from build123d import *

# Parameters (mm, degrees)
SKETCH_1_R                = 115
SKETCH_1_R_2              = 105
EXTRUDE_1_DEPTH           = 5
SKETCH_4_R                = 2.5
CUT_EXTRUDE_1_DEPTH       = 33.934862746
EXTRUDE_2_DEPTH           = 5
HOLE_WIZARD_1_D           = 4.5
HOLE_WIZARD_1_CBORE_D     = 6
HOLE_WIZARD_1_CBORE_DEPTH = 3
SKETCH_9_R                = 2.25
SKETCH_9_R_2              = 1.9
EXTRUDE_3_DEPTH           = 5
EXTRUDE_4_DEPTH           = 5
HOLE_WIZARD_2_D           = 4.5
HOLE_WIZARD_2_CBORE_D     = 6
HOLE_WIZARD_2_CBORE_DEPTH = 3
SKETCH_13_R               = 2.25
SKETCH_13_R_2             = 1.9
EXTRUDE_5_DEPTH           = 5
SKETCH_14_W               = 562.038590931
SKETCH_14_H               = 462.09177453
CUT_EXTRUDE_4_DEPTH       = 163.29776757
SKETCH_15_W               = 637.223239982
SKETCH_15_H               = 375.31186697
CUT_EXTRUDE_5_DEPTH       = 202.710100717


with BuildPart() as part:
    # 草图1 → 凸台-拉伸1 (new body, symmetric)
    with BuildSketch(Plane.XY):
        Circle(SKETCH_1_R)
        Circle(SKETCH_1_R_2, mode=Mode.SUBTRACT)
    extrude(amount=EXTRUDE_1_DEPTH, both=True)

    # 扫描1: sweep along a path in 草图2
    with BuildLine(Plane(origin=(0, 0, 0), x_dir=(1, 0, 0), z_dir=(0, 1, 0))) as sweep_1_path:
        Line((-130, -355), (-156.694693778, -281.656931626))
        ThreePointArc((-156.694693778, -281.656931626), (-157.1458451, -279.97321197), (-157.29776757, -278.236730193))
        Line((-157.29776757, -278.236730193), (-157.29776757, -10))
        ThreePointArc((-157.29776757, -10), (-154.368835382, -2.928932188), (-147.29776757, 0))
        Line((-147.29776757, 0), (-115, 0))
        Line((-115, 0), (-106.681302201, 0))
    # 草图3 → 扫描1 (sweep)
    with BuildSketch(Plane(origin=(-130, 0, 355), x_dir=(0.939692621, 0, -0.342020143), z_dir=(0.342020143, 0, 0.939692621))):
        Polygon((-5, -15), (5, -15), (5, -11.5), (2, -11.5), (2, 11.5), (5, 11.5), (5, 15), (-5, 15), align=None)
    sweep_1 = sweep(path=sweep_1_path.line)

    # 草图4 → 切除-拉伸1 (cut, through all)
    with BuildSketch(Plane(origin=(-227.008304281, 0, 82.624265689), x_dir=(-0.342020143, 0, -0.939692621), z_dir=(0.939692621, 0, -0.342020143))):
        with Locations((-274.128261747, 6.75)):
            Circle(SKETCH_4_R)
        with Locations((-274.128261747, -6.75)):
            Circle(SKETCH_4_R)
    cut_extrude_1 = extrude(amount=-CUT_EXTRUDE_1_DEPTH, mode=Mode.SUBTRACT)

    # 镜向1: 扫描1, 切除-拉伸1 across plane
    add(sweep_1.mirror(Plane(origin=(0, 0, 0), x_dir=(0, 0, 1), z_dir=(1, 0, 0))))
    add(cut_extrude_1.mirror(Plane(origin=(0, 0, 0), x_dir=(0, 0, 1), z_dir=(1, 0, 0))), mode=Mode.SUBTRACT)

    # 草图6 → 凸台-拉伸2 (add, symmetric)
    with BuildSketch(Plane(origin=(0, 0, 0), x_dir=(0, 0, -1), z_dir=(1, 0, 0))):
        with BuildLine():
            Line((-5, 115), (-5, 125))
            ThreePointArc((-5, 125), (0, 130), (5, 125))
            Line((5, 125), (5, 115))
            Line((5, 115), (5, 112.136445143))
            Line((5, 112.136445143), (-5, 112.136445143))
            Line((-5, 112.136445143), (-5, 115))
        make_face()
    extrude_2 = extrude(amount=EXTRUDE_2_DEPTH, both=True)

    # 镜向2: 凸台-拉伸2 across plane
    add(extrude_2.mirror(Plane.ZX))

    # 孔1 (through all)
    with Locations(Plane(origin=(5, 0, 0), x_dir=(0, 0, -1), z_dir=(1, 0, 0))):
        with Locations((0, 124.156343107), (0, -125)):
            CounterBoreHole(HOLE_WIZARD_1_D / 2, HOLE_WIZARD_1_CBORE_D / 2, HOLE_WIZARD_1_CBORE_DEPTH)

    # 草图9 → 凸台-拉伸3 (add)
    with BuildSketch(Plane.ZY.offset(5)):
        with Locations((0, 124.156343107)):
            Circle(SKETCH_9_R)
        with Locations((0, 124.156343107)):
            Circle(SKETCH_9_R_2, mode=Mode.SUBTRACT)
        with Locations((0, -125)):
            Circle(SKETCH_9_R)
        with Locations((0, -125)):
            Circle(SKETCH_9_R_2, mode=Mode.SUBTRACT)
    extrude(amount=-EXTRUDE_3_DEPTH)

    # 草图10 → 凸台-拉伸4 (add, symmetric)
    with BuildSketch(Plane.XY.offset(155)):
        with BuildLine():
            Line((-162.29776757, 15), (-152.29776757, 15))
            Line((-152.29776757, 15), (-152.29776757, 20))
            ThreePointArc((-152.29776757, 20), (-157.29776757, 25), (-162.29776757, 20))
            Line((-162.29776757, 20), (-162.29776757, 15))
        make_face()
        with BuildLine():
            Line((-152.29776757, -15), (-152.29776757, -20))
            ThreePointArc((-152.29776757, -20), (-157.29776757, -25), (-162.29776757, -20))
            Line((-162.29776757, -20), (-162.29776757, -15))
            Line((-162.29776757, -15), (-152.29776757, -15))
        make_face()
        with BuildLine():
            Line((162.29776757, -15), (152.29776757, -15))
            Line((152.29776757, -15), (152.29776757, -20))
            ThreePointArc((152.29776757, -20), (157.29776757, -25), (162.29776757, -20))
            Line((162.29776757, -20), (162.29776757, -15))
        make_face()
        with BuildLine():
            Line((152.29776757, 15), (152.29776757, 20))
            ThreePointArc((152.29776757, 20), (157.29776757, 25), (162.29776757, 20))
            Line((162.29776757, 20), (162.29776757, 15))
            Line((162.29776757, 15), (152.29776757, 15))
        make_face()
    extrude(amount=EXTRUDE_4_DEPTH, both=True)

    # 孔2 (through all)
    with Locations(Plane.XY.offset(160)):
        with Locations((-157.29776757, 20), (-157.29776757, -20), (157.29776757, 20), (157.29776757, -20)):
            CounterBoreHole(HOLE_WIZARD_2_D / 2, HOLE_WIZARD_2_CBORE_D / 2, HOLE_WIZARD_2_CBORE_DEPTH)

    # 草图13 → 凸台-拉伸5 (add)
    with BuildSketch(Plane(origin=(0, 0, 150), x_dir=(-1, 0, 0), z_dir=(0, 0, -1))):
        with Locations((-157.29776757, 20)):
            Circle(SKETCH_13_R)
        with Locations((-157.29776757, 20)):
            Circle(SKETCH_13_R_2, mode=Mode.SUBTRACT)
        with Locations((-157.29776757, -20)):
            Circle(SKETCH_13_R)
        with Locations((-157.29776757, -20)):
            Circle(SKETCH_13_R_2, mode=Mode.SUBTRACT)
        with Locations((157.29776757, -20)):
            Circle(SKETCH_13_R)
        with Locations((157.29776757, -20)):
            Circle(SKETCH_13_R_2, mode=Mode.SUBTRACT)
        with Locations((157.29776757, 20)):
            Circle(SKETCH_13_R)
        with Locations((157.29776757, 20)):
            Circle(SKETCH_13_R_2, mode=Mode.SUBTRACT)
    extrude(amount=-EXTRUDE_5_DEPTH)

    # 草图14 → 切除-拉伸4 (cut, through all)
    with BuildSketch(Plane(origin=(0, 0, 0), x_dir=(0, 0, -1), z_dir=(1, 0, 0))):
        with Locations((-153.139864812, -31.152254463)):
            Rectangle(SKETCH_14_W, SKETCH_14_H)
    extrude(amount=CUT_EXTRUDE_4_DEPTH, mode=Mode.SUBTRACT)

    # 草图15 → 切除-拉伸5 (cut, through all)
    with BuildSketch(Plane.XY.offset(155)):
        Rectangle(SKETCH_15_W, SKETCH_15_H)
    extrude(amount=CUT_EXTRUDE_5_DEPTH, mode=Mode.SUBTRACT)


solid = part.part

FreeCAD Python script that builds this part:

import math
import FreeCAD as App
import Part
import Sketcher
Q = App.Units.Quantity


def add_polygon(sketch, points):
    """Adds a closed chain of lines whose ends are joined by coincident constraints."""
    first, n = sketch.GeometryCount, len(points)
    for a, b in zip(points, points[1:] + points[:1]):
        sketch.addGeometry(Part.LineSegment(App.Vector(*a, 0), App.Vector(*b, 0)), False)
    for i in range(n):
        sketch.addConstraint(Sketcher.Constraint("Coincident", first + i, 2, first + (i + 1) % n, 1))

doc = App.newDocument("Part")
params = doc.addObject("Spreadsheet::Sheet", "Params")
for row, (alias, value) in enumerate([
    ("sketch1_diameter", "230 mm"),
    ("sketch1_diameter2", "210 mm"),
    ("pad1_length", "10 mm"),
    ("sketch2_width", "10 mm"),
    ("sketch2_width2", "3 mm"),
    ("sketch2_height", "23 mm"),
    ("sketch2_height2", "30 mm"),
    ("sketch3_radius", "10 mm"),
    ("sketch4_diameter", "5 mm"),
    ("sketch5_radius", "5 mm"),
    ("pad2_length", "10 mm"),
    ("sketch6_diameter", "4.5 mm"),
    ("hole_diameter", "4.5 mm"),
    ("hole_cbore_diameter", "6 mm"),
    ("hole_cbore_depth", "3 mm"),
    ("sketch7_diameter", "4.5 mm"),
    ("sketch7_diameter2", "3.8 mm"),
    ("pad3_length", "5 mm"),
    ("sketch8_radius", "5 mm"),
    ("sketch8_height", "5 mm"),
    ("pad4_length", "10 mm"),
    ("sketch9_diameter", "4.5 mm"),
    ("hole2_diameter", "4.5 mm"),
    ("hole2_cbore_diameter", "6 mm"),
    ("hole2_cbore_depth", "3 mm"),
    ("sketch10_diameter", "4.5 mm"),
    ("sketch10_diameter2", "3.8 mm"),
    ("pad5_length", "5 mm"),
], start=1):
    params.set(f"A{row}", alias)
    params.set(f"B{row}", "=" + value)
    params.setAlias(f"B{row}", alias)

body = doc.addObject("PartDesign::Body", "Body")

# Sketch on XY plane
sketch1 = doc.addObject("Sketcher::SketchObject", "Sketch")
body.addObject(sketch1)
sketch1.AttachmentSupport = (doc.XY_Plane, [""])
sketch1.MapMode = "FlatFace"
sketch1.addGeometry(Part.Circle(App.Vector(0, 0, 0), App.Vector(0, 0, 1), 115), False)
sketch1.addGeometry(Part.Circle(App.Vector(0, 0, 0), App.Vector(0, 0, 1), 105), False)
sketch1.addConstraint(Sketcher.Constraint("Coincident", 0, 3, -1, 1))
sketch1.addConstraint(Sketcher.Constraint("Coincident", 1, 3, -1, 1))
sketch1.addConstraint(Sketcher.Constraint("Diameter", 0, Q("230 mm")))
sketch1.addConstraint(Sketcher.Constraint("Diameter", 1, Q("210 mm")))
sketch1.setExpression("Constraints[2]", "Params.sketch1_diameter")
sketch1.setExpression("Constraints[3]", "Params.sketch1_diameter2")
pad1 = doc.addObject("PartDesign::Pad", "Pad")
body.addObject(pad1)
pad1.Profile = sketch1
pad1.setExpression("Length", "Params.pad1_length")
pad1.Midplane = True

# Sketch on an angled plane
sketch2 = doc.addObject("Sketcher::SketchObject", "Sketch001")
body.addObject(sketch2)
sketch2.Placement = App.Placement(App.Vector(-130, 0, 355), App.Rotation(App.Vector(0.939692621, 0, -0.342020143), App.Vector(0, 1, 0), App.Vector(0.342020143, 0, 0.939692621), "ZXY"))
add_polygon(sketch2, [(-5, -15), (5, -15), (5, -11.5), (2, -11.5), (2, 11.5), (5, 11.5), (5, 15), (-5, 15)])  # lines 0-7
sketch2.addConstraint(Sketcher.Constraint("Horizontal", 0))
sketch2.addConstraint(Sketcher.Constraint("Vertical", 1))
sketch2.addConstraint(Sketcher.Constraint("Horizontal", 2))
sketch2.addConstraint(Sketcher.Constraint("Vertical", 3))
sketch2.addConstraint(Sketcher.Constraint("Horizontal", 4))
sketch2.addConstraint(Sketcher.Constraint("Vertical", 5))
sketch2.addConstraint(Sketcher.Constraint("Horizontal", 6))
sketch2.addConstraint(Sketcher.Constraint("Vertical", 7))
sketch2.addConstraint(Sketcher.Constraint("Symmetric", 0, 2, 6, 2, -1, 1))
sketch2.addConstraint(Sketcher.Constraint("Symmetric", 1, 2, 4, 2, -1))
sketch2.addConstraint(Sketcher.Constraint("DistanceX", 0, 1, 0, 2, Q("10 mm")))
sketch2.addConstraint(Sketcher.Constraint("DistanceX", 2, 2, 2, 1, Q("3 mm")))
sketch2.addConstraint(Sketcher.Constraint("DistanceY", 3, 1, 3, 2, Q("23 mm")))
sketch2.addConstraint(Sketcher.Constraint("DistanceY", 7, 2, 7, 1, Q("30 mm")))
sketch2.setExpression("Constraints[18]", "Params.sketch2_width")
sketch2.setExpression("Constraints[19]", "Params.sketch2_width2")
sketch2.setExpression("Constraints[20]", "Params.sketch2_height")
sketch2.setExpression("Constraints[21]", "Params.sketch2_height2")

# Sketch on XZ plane
sketch3 = doc.addObject("Sketcher::SketchObject", "Sketch002")
body.addObject(sketch3)
sketch3.AttachmentSupport = (doc.XZ_Plane, [""])
sketch3.MapMode = "FlatFace"
sketch3.addGeometry(Part.LineSegment(App.Vector(-130, 355, 0), App.Vector(-156.7, 281.7, 0)), False)
sketch3.addGeometry(Part.ArcOfCircle(Part.Circle(App.Vector(-147.3, 278.2, 0), App.Vector(0, 0, 1), 10), math.radians(160), math.radians(180)), False)
sketch3.addGeometry(Part.LineSegment(App.Vector(-157.3, 278.2, 0), App.Vector(-157.3, 10, 0)), False)
sketch3.addGeometry(Part.ArcOfCircle(Part.Circle(App.Vector(-147.3, 10, 0), App.Vector(0, 0, 1), 10), math.radians(180), math.radians(270)), False)
sketch3.addGeometry(Part.LineSegment(App.Vector(-147.3, 0, 0), App.Vector(-106.7, 0, 0)), False)
sketch3.addConstraint(Sketcher.Constraint("Tangent", 0, 2, 1, 1))
sketch3.addConstraint(Sketcher.Constraint("Tangent", 1, 2, 2, 1))
sketch3.addConstraint(Sketcher.Constraint("Tangent", 2, 2, 3, 1))
sketch3.addConstraint(Sketcher.Constraint("Tangent", 3, 2, 4, 1))
sketch3.addConstraint(Sketcher.Constraint("Vertical", 2))
sketch3.addConstraint(Sketcher.Constraint("Horizontal", 4))
sketch3.addConstraint(Sketcher.Constraint("Equal", 1, 3))
sketch3.addConstraint(Sketcher.Constraint("PointOnObject", 3, 2, -1))
sketch3.addConstraint(Sketcher.Constraint("Radius", 1, Q("10 mm")))
sketch3.addConstraint(Sketcher.Constraint("Angle", 0, Q("-110 deg")))
sketch3.addConstraint(Sketcher.Constraint("DistanceX", 0, 1, -1, 1, Q("130 mm")))
sketch3.addConstraint(Sketcher.Constraint("DistanceY", -1, 1, 0, 1, Q("355 mm")))
sketch3.addConstraint(Sketcher.Constraint("DistanceY", 2, 2, 2, 1, Q("268.23673 mm")))
sketch3.addConstraint(Sketcher.Constraint("DistanceX", 4, 1, 4, 2, Q("40.616465 mm")))
sketch3.setExpression("Constraints[8]", "Params.sketch3_radius")
doc.recompute()

additivepipe = doc.addObject("PartDesign::AdditivePipe", "AdditivePipe")
body.addObject(additivepipe)
additivepipe.Profile = sketch2
additivepipe.Spine = (sketch3, ["Edge1", "Edge2", "Edge3", "Edge4", "Edge5"])

# Sketch on an angled plane
sketch4 = doc.addObject("Sketcher::SketchObject", "Sketch003")
body.addObject(sketch4)
sketch4.Placement = App.Placement(App.Vector(-227.008304, 0, 82.624266), App.Rotation(App.Vector(-0.342020143, 0, -0.939692621), App.Vector(0, 1, 0), App.Vector(0.939692621, 0, -0.342020143), "ZXY"))
sketch4.addGeometry(Part.Circle(App.Vector(-274.1, 6.8, 0), App.Vector(0, 0, 1), 2.5), False)
sketch4.addGeometry(Part.Circle(App.Vector(-274.1, -6.8, 0), App.Vector(0, 0, 1), 2.5), False)
sketch4.addConstraint(Sketcher.Constraint("Equal", 0, 1))
sketch4.addConstraint(Sketcher.Constraint("Symmetric", 0, 3, 1, 3, -1))
sketch4.addConstraint(Sketcher.Constraint("Diameter", 0, Q("5 mm")))
sketch4.addConstraint(Sketcher.Constraint("DistanceY", 1, 3, 0, 3, Q("13.5 mm")))
sketch4.addConstraint(Sketcher.Constraint("DistanceX", 0, 3, -1, 1, Q("274.128262 mm")))
sketch4.setExpression("Constraints[2]", "Params.sketch4_diameter")
pocket1 = doc.addObject("PartDesign::Pocket", "Pocket")
body.addObject(pocket1)
pocket1.Profile = sketch4
pocket1.Type = "ThroughAll"
doc.recompute()

mirrored = doc.addObject("PartDesign::Mirrored", "Mirrored")
body.addObject(mirrored)
mirrored.Originals = [additivepipe, pocket1]
mirrored.MirrorPlane = (doc.YZ_Plane, [""])
body.Tip = mirrored

# Sketch on YZ plane
sketch5 = doc.addObject("Sketcher::SketchObject", "Sketch004")
body.addObject(sketch5)
sketch5.AttachmentSupport = (doc.YZ_Plane, [""])
sketch5.MapMode = "FlatFace"
sketch5.addGeometry(Part.ArcOfCircle(Part.Circle(App.Vector(125, 0, 0), App.Vector(0, 0, 1), 5), math.radians(-90), math.radians(90)), False)
sketch5.addGeometry(Part.LineSegment(App.Vector(125, 5, 0), App.Vector(112, 5, 0)), False)
sketch5.addGeometry(Part.LineSegment(App.Vector(112, 5, 0), App.Vector(112, -5, 0)), False)
sketch5.addGeometry(Part.LineSegment(App.Vector(112, -5, 0), App.Vector(125, -5, 0)), False)
sketch5.addConstraint(Sketcher.Constraint("Tangent", 0, 2, 1, 1))
sketch5.addConstraint(Sketcher.Constraint("Coincident", 1, 2, 2, 1))
sketch5.addConstraint(Sketcher.Constraint("Coincident", 2, 2, 3, 1))
sketch5.addConstraint(Sketcher.Constraint("Tangent", 3, 2, 0, 1))
sketch5.addConstraint(Sketcher.Constraint("Horizontal", 1))
sketch5.addConstraint(Sketcher.Constraint("Vertical", 2))
sketch5.addConstraint(Sketcher.Constraint("Horizontal", 3))
sketch5.addConstraint(Sketcher.Constraint("PointOnObject", 0, 3, -1))
sketch5.addConstraint(Sketcher.Constraint("Radius", 0, Q("5 mm")))
sketch5.addConstraint(Sketcher.Constraint("DistanceX", -1, 1, 0, 3, Q("125 mm")))
sketch5.addConstraint(Sketcher.Constraint("DistanceX", 1, 2, 1, 1, Q("12.863555 mm")))
sketch5.setExpression("Constraints[8]", "Params.sketch5_radius")
pad2 = doc.addObject("PartDesign::Pad", "Pad001")
body.addObject(pad2)
pad2.Profile = sketch5
pad2.setExpression("Length", "Params.pad2_length")
pad2.Midplane = True
doc.recompute()

mirrored2 = doc.addObject("PartDesign::Mirrored", "Mirrored001")
body.addObject(mirrored2)
mirrored2.Originals = [pad2]
mirrored2.MirrorPlane = (doc.XZ_Plane, [""])
body.Tip = mirrored2

# Sketch on YZ plane
sketch6 = doc.addObject("Sketcher::SketchObject", "Sketch005")
body.addObject(sketch6)
sketch6.AttachmentSupport = (doc.YZ_Plane, [""])
sketch6.MapMode = "FlatFace"
sketch6.AttachmentOffset = App.Placement(App.Vector(0, 0, 5), App.Rotation())
sketch6.addGeometry(Part.Circle(App.Vector(124.2, 0, 0), App.Vector(0, 0, 1), 2.2), False)
sketch6.addGeometry(Part.Circle(App.Vector(-125, 0, 0), App.Vector(0, 0, 1), 2.2), False)
sketch6.addConstraint(Sketcher.Constraint("Equal", 0, 1))
sketch6.addConstraint(Sketcher.Constraint("PointOnObject", 0, 3, -1))
sketch6.addConstraint(Sketcher.Constraint("PointOnObject", 1, 3, -1))
sketch6.addConstraint(Sketcher.Constraint("Diameter", 0, Q("4.5 mm")))
sketch6.addConstraint(Sketcher.Constraint("DistanceX", 1, 3, -1, 1, Q("125 mm")))
sketch6.addConstraint(Sketcher.Constraint("DistanceX", -1, 1, 0, 3, Q("124.156343 mm")))
sketch6.setExpression("Constraints[3]", "Params.sketch6_diameter")
doc.recompute()
hole = doc.addObject("PartDesign::Hole", "Hole")
body.addObject(hole)
hole.Profile = sketch6
hole.ThreadType = "None"
hole.setExpression("Diameter", "Params.hole_diameter")
hole.DepthType = "ThroughAll"
hole.HoleCutType = "Counterbore"
hole.setExpression("HoleCutDiameter", "Params.hole_cbore_diameter")
hole.setExpression("HoleCutDepth", "Params.hole_cbore_depth")

# Sketch on YZ plane
sketch7 = doc.addObject("Sketcher::SketchObject", "Sketch006")
body.addObject(sketch7)
sketch7.AttachmentSupport = (doc.YZ_Plane, [""])
sketch7.MapMode = "FlatFace"
sketch7.AttachmentOffset = App.Placement(App.Vector(0, 0, -5), App.Rotation())
sketch7.addGeometry(Part.Circle(App.Vector(124.2, 0, 0), App.Vector(0, 0, 1), 2.2), False)
sketch7.addGeometry(Part.Circle(App.Vector(124.2, 0, 0), App.Vector(0, 0, 1), 1.9), False)
sketch7.addGeometry(Part.Circle(App.Vector(-125, 0, 0), App.Vector(0, 0, 1), 2.2), False)
sketch7.addGeometry(Part.Circle(App.Vector(-125, 0, 0), App.Vector(0, 0, 1), 1.9), False)
sketch7.addConstraint(Sketcher.Constraint("Coincident", 1, 3, 0, 3))
sketch7.addConstraint(Sketcher.Constraint("Coincident", 3, 3, 2, 3))
sketch7.addConstraint(Sketcher.Constraint("Equal", 0, 2))
sketch7.addConstraint(Sketcher.Constraint("Equal", 1, 3))
sketch7.addConstraint(Sketcher.Constraint("PointOnObject", 0, 3, -1))
sketch7.addConstraint(Sketcher.Constraint("PointOnObject", 2, 3, -1))
sketch7.addConstraint(Sketcher.Constraint("Diameter", 0, Q("4.5 mm")))
sketch7.addConstraint(Sketcher.Constraint("Diameter", 1, Q("3.8 mm")))
sketch7.addConstraint(Sketcher.Constraint("DistanceX", 2, 3, -1, 1, Q("125 mm")))
sketch7.addConstraint(Sketcher.Constraint("DistanceX", -1, 1, 0, 3, Q("124.156343 mm")))
sketch7.setExpression("Constraints[6]", "Params.sketch7_diameter")
sketch7.setExpression("Constraints[7]", "Params.sketch7_diameter2")
pad3 = doc.addObject("PartDesign::Pad", "Pad002")
body.addObject(pad3)
pad3.Profile = sketch7
pad3.setExpression("Length", "Params.pad3_length")

# Sketch on XY plane
sketch8 = doc.addObject("Sketcher::SketchObject", "Sketch007")
body.addObject(sketch8)
sketch8.AttachmentSupport = (doc.XY_Plane, [""])
sketch8.MapMode = "FlatFace"
sketch8.AttachmentOffset = App.Placement(App.Vector(0, 0, 155), App.Rotation())
sketch8.addGeometry(Part.LineSegment(App.Vector(-162, 15, 0), App.Vector(-152, 15, 0)), False)
sketch8.addGeometry(Part.LineSegment(App.Vector(-152, 15, 0), App.Vector(-152, 20, 0)), False)
sketch8.addGeometry(Part.ArcOfCircle(Part.Circle(App.Vector(-157, 20, 0), App.Vector(0, 0, 1), 5), math.radians(0), math.radians(180)), False)
sketch8.addGeometry(Part.LineSegment(App.Vector(-162, 20, 0), App.Vector(-162, 15, 0)), False)
sketch8.addGeometry(Part.LineSegment(App.Vector(-152, -20, 0), App.Vector(-152, -15, 0)), False)
sketch8.addGeometry(Part.LineSegment(App.Vector(-152, -15, 0), App.Vector(-162, -15, 0)), False)
sketch8.addGeometry(Part.LineSegment(App.Vector(-162, -15, 0), App.Vector(-162, -20, 0)), False)
sketch8.addGeometry(Part.ArcOfCircle(Part.Circle(App.Vector(-157, -20, 0), App.Vector(0, 0, 1), 5), math.radians(180), math.radians(360)), False)
sketch8.addGeometry(Part.LineSegment(App.Vector(162, -15, 0), App.Vector(152, -15, 0)), False)
sketch8.addGeometry(Part.LineSegment(App.Vector(152, -15, 0), App.Vector(152, -20, 0)), False)
sketch8.addGeometry(Part.ArcOfCircle(Part.Circle(App.Vector(157, -20, 0), App.Vector(0, 0, 1), 5), math.radians(180), math.radians(360)), False)
sketch8.addGeometry(Part.LineSegment(App.Vector(162, -20, 0), App.Vector(162, -15, 0)), False)
sketch8.addGeometry(Part.LineSegment(App.Vector(152, 20, 0), App.Vector(152, 15, 0)), False)
sketch8.addGeometry(Part.LineSegment(App.Vector(152, 15, 0), App.Vector(162, 15, 0)), False)
sketch8.addGeometry(Part.LineSegment(App.Vector(162, 15, 0), App.Vector(162, 20, 0)), False)
sketch8.addGeometry(Part.ArcOfCircle(Part.Circle(App.Vector(157, 20, 0), App.Vector(0, 0, 1), 5), math.radians(0), math.radians(180)), False)
sketch8.addConstraint(Sketcher.Constraint("Coincident", 0, 2, 1, 1))
sketch8.addConstraint(Sketcher.Constraint("Tangent", 1, 2, 2, 1))
sketch8.addConstraint(Sketcher.Constraint("Tangent", 2, 2, 3, 1))
sketch8.addConstraint(Sketcher.Constraint("Coincident", 3, 2, 0, 1))
sketch8.addConstraint(Sketcher.Constraint("Coincident", 4, 2, 5, 1))
sketch8.addConstraint(Sketcher.Constraint("Coincident", 5, 2, 6, 1))
sketch8.addConstraint(Sketcher.Constraint("Tangent", 6, 2, 7, 1))
sketch8.addConstraint(Sketcher.Constraint("Tangent", 7, 2, 4, 1))
sketch8.addConstraint(Sketcher.Constraint("Coincident", 8, 2, 9, 1))
sketch8.addConstraint(Sketcher.Constraint("Tangent", 9, 2, 10, 1))
sketch8.addConstraint(Sketcher.Constraint("Tangent", 10, 2, 11, 1))
sketch8.addConstraint(Sketcher.Constraint("Coincident", 11, 2, 8, 1))
sketch8.addConstraint(Sketcher.Constraint("Coincident", 12, 2, 13, 1))
sketch8.addConstraint(Sketcher.Constraint("Coincident", 13, 2, 14, 1))
sketch8.addConstraint(Sketcher.Constraint("Tangent", 14, 2, 15, 1))
sketch8.addConstraint(Sketcher.Constraint("Tangent", 15, 2, 12, 1))
sketch8.addConstraint(Sketcher.Constraint("Horizontal", 0))
sketch8.addConstraint(Sketcher.Constraint("Vertical", 1))
sketch8.addConstraint(Sketcher.Constraint("Vertical", 3))
sketch8.addConstraint(Sketcher.Constraint("Vertical", 4))
sketch8.addConstraint(Sketcher.Constraint("Horizontal", 5))
sketch8.addConstraint(Sketcher.Constraint("Vertical", 6))
sketch8.addConstraint(Sketcher.Constraint("Horizontal", 8))
sketch8.addConstraint(Sketcher.Constraint("Vertical", 9))
sketch8.addConstraint(Sketcher.Constraint("Vertical", 11))
sketch8.addConstraint(Sketcher.Constraint("Vertical", 12))
sketch8.addConstraint(Sketcher.Constraint("Horizontal", 13))
sketch8.addConstraint(Sketcher.Constraint("Vertical", 14))
sketch8.addConstraint(Sketcher.Constraint("Equal", 2, 7))
sketch8.addConstraint(Sketcher.Constraint("Equal", 7, 10))
sketch8.addConstraint(Sketcher.Constraint("Equal", 10, 15))
sketch8.addConstraint(Sketcher.Constraint("Symmetric", 2, 3, 10, 3, -1, 1))
sketch8.addConstraint(Sketcher.Constraint("Symmetric", 7, 3, 15, 3, -1, 1))
sketch8.addConstraint(Sketcher.Constraint("Symmetric", 7, 3, 10, 3, -2))
sketch8.addConstraint(Sketcher.Constraint("Horizontal", 5, 2, 8, 2))
sketch8.addConstraint(Sketcher.Constraint("Horizontal", 3, 2, 12, 2))
sketch8.addConstraint(Sketcher.Constraint("Equal", 3, 4))
sketch8.addConstraint(Sketcher.Constraint("Radius", 2, Q("5 mm")))
sketch8.addConstraint(Sketcher.Constraint("DistanceY", 1, 1, 1, 2, Q("5 mm")))
sketch8.addConstraint(Sketcher.Constraint("DistanceY", -1, 1, 2, 3, Q("20 mm")))
sketch8.addConstraint(Sketcher.Constraint("DistanceX", 2, 3, -1, 1, Q("157.297768 mm")))
sketch8.setExpression("Constraints[37]", "Params.sketch8_radius")
sketch8.setExpression("Constraints[38]", "Params.sketch8_height")
pad4 = doc.addObject("PartDesign::Pad", "Pad003")
body.addObject(pad4)
pad4.Profile = sketch8
pad4.setExpression("Length", "Params.pad4_length")
pad4.Midplane = True

# Sketch on XY plane
sketch9 = doc.addObject("Sketcher::SketchObject", "Sketch008")
body.addObject(sketch9)
sketch9.AttachmentSupport = (doc.XY_Plane, [""])
sketch9.MapMode = "FlatFace"
sketch9.AttachmentOffset = App.Placement(App.Vector(0, 0, 160), App.Rotation())
sketch9.addGeometry(Part.Circle(App.Vector(-157.3, 20, 0), App.Vector(0, 0, 1), 2.2), False)
sketch9.addGeometry(Part.Circle(App.Vector(-157.3, -20, 0), App.Vector(0, 0, 1), 2.2), False)
sketch9.addGeometry(Part.Circle(App.Vector(157.3, 20, 0), App.Vector(0, 0, 1), 2.2), False)
sketch9.addGeometry(Part.Circle(App.Vector(157.3, -20, 0), App.Vector(0, 0, 1), 2.2), False)
sketch9.addConstraint(Sketcher.Constraint("Equal", 0, 1))
sketch9.addConstraint(Sketcher.Constraint("Equal", 1, 2))
sketch9.addConstraint(Sketcher.Constraint("Equal", 2, 3))
sketch9.addConstraint(Sketcher.Constraint("Symmetric", 1, 3, 2, 3, -1, 1))
sketch9.addConstraint(Sketcher.Constraint("Symmetric", 0, 3, 3, 3, -1, 1))
sketch9.addConstraint(Sketcher.Constraint("Symmetric", 0, 3, 2, 3, -2))
sketch9.addConstraint(Sketcher.Constraint("Diameter", 0, Q("4.5 mm")))
sketch9.addConstraint(Sketcher.Constraint("DistanceY", -1, 1, 0, 3, Q("20 mm")))
sketch9.addConstraint(Sketcher.Constraint("DistanceX", 0, 3, -1, 1, Q("157.297768 mm")))
sketch9.setExpression("Constraints[6]", "Params.sketch9_diameter")
doc.recompute()
hole2 = doc.addObject("PartDesign::Hole", "Hole001")
body.addObject(hole2)
hole2.Profile = sketch9
hole2.ThreadType = "None"
hole2.setExpression("Diameter", "Params.hole2_diameter")
hole2.DepthType = "ThroughAll"
hole2.HoleCutType = "Counterbore"
hole2.setExpression("HoleCutDiameter", "Params.hole2_cbore_diameter")
hole2.setExpression("HoleCutDepth", "Params.hole2_cbore_depth")

# Sketch on XY plane
sketch10 = doc.addObject("Sketcher::SketchObject", "Sketch009")
body.addObject(sketch10)
sketch10.AttachmentSupport = (doc.XY_Plane, [""])
sketch10.MapMode = "FlatFace"
sketch10.AttachmentOffset = App.Placement(App.Vector(0, 0, 150), App.Rotation())
sketch10.addGeometry(Part.Circle(App.Vector(157.3, 20, 0), App.Vector(0, 0, 1), 2.2), False)
sketch10.addGeometry(Part.Circle(App.Vector(157.3, 20, 0), App.Vector(0, 0, 1), 1.9), False)
sketch10.addGeometry(Part.Circle(App.Vector(157.3, -20, 0), App.Vector(0, 0, 1), 2.2), False)
sketch10.addGeometry(Part.Circle(App.Vector(157.3, -20, 0), App.Vector(0, 0, 1), 1.9), False)
sketch10.addGeometry(Part.Circle(App.Vector(-157.3, -20, 0), App.Vector(0, 0, 1), 2.2), False)
sketch10.addGeometry(Part.Circle(App.Vector(-157.3, -20, 0), App.Vector(0, 0, 1), 1.9), False)
sketch10.addGeometry(Part.Circle(App.Vector(-157.3, 20, 0), App.Vector(0, 0, 1), 2.2), False)
sketch10.addGeometry(Part.Circle(App.Vector(-157.3, 20, 0), App.Vector(0, 0, 1), 1.9), False)
sketch10.addConstraint(Sketcher.Constraint("Coincident", 1, 3, 0, 3))
sketch10.addConstraint(Sketcher.Constraint("Coincident", 3, 3, 2, 3))
sketch10.addConstraint(Sketcher.Constraint("Coincident", 5, 3, 4, 3))
sketch10.addConstraint(Sketcher.Constraint("Coincident", 7, 3, 6, 3))
sketch10.addConstraint(Sketcher.Constraint("Equal", 0, 2))
sketch10.addConstraint(Sketcher.Constraint("Equal", 1, 3))
sketch10.addConstraint(Sketcher.Constraint("Equal", 2, 4))
sketch10.addConstraint(Sketcher.Constraint("Equal", 3, 5))
sketch10.addConstraint(Sketcher.Constraint("Equal", 4, 6))
sketch10.addConstraint(Sketcher.Constraint("Equal", 5, 7))
sketch10.addConstraint(Sketcher.Constraint("Symmetric", 0, 3, 4, 3, -1, 1))
sketch10.addConstraint(Sketcher.Constraint("Symmetric", 2, 3, 6, 3, -1, 1))
sketch10.addConstraint(Sketcher.Constraint("Symmetric", 2, 3, 4, 3, -2))
sketch10.addConstraint(Sketcher.Constraint("Diameter", 0, Q("4.5 mm")))
sketch10.addConstraint(Sketcher.Constraint("Diameter", 1, Q("3.8 mm")))
sketch10.addConstraint(Sketcher.Constraint("DistanceY", -1, 1, 0, 3, Q("20 mm")))
sketch10.addConstraint(Sketcher.Constraint("DistanceX", -1, 1, 0, 3, Q("157.297768 mm")))
sketch10.setExpression("Constraints[13]", "Params.sketch10_diameter")
sketch10.setExpression("Constraints[14]", "Params.sketch10_diameter2")
pad5 = doc.addObject("PartDesign::Pad", "Pad004")
body.addObject(pad5)
pad5.Profile = sketch10
pad5.setExpression("Length", "Params.pad5_length")

# Sketch on YZ plane
sketch11 = doc.addObject("Sketcher::SketchObject", "Sketch010")
body.addObject(sketch11)
sketch11.AttachmentSupport = (doc.YZ_Plane, [""])
sketch11.MapMode = "FlatFace"
add_polygon(sketch11, [(200, 434), (-262, 434), (-262, -128), (200, -128)])  # lines 0-3
sketch11.addConstraint(Sketcher.Constraint("Horizontal", 0))
sketch11.addConstraint(Sketcher.Constraint("Vertical", 1))
sketch11.addConstraint(Sketcher.Constraint("Horizontal", 2))
sketch11.addConstraint(Sketcher.Constraint("Vertical", 3))
sketch11.addConstraint(Sketcher.Constraint("DistanceY", 1, 2, 1, 1, Q("562.038591 mm")))
sketch11.addConstraint(Sketcher.Constraint("DistanceX", 0, 2, 0, 1, Q("462.091775 mm")))
sketch11.addConstraint(Sketcher.Constraint("DistanceX", 0, 2, -1, 1, Q("262.198142 mm")))
sketch11.addConstraint(Sketcher.Constraint("DistanceY", -1, 1, 0, 2, Q("434.15916 mm")))
pocket2 = doc.addObject("PartDesign::Pocket", "Pocket001")
body.addObject(pocket2)
pocket2.Profile = sketch11
pocket2.Type = "ThroughAll"
pocket2.Reversed = True

# Sketch on XY plane
sketch12 = doc.addObject("Sketcher::SketchObject", "Sketch011")
body.addObject(sketch12)
sketch12.AttachmentSupport = (doc.XY_Plane, [""])
sketch12.MapMode = "FlatFace"
sketch12.AttachmentOffset = App.Placement(App.Vector(0, 0, 155), App.Rotation())
add_polygon(sketch12, [(-319, 188), (-319, -188), (319, -188), (319, 188)])  # lines 0-3
sketch12.addConstraint(Sketcher.Constraint("Vertical", 0))
sketch12.addConstraint(Sketcher.Constraint("Horizontal", 1))
sketch12.addConstraint(Sketcher.Constraint("Vertical", 2))
sketch12.addConstraint(Sketcher.Constraint("Horizontal", 3))
sketch12.addConstraint(Sketcher.Constraint("Symmetric", 0, 2, 2, 2, -1, 1))
sketch12.addConstraint(Sketcher.Constraint("DistanceX", 1, 1, 1, 2, Q("637.22324 mm")))
sketch12.addConstraint(Sketcher.Constraint("DistanceY", 0, 2, 0, 1, Q("375.311867 mm")))
pocket3 = doc.addObject("PartDesign::Pocket", "Pocket002")
body.addObject(pocket3)
pocket3.Profile = sketch12
pocket3.Type = "ThroughAll"
pocket3.Reversed = True

doc.recompute()
